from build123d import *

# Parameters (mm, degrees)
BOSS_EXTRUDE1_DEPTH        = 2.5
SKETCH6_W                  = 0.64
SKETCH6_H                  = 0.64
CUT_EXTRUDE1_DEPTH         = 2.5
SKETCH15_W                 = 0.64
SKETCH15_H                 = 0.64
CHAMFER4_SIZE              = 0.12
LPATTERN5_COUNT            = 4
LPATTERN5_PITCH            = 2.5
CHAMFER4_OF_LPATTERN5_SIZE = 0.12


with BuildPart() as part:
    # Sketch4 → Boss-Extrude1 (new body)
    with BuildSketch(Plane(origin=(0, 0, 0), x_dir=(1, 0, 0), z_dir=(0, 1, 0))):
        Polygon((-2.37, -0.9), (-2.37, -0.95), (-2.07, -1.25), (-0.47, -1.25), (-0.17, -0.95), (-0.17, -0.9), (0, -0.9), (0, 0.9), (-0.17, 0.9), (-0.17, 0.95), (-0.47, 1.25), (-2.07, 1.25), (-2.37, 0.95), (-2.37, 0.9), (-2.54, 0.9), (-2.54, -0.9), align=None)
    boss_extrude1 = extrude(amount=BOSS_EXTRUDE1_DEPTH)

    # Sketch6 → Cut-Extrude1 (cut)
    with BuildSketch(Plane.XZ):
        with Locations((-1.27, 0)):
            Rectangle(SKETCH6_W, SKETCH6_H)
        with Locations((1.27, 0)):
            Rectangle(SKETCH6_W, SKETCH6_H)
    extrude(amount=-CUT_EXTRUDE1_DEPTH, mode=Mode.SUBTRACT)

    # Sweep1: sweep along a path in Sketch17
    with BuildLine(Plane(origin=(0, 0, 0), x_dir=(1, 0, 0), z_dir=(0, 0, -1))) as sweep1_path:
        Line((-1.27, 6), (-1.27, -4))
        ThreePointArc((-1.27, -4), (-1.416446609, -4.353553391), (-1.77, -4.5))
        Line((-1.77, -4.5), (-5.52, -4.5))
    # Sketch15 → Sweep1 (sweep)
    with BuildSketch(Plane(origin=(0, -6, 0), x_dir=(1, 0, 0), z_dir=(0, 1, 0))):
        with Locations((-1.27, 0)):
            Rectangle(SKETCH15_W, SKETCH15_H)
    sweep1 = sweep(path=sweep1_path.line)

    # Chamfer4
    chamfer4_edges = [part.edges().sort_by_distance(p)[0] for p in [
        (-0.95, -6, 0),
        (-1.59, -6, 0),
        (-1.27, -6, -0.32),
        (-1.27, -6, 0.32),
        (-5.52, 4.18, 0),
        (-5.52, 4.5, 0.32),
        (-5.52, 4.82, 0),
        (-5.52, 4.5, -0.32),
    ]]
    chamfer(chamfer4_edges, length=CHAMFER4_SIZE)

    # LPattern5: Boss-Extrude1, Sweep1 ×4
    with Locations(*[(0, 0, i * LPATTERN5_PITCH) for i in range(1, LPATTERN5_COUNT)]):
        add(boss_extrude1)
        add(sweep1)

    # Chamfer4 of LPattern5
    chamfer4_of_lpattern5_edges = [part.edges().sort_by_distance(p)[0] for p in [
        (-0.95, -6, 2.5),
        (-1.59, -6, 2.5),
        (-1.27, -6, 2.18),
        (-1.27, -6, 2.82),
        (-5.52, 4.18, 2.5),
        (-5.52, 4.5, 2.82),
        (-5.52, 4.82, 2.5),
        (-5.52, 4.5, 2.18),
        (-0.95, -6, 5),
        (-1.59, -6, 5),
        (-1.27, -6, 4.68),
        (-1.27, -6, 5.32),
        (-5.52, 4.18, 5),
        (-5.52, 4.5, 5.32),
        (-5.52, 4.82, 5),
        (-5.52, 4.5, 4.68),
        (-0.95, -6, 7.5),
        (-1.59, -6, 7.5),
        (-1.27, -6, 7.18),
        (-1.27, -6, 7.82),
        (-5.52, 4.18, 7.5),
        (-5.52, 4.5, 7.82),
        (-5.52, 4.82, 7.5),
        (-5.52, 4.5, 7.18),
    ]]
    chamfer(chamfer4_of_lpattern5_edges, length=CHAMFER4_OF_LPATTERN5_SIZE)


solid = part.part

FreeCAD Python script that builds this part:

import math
import FreeCAD as App
import Part
import Sketcher
from FreeCAD import Vector


def edges_at(feature, points):
    """Names of the edges that pass closest to the given points."""
    edges = feature.Shape.Edges
    near = lambda p: min(range(len(edges)), key=lambda i: edges[i].distToShape(Part.Vertex(*p))[0])
    return sorted({f"Edge{near(p) + 1}" for p in points})


def add_polygon(sketch, points):
    """Adds a closed chain of lines whose ends are joined by coincident constraints."""
    first, n = sketch.GeometryCount, len(points)
    for a, b in zip(points, points[1:] + points[:1]):
        sketch.addGeometry(Part.LineSegment(App.Vector(*a, 0), App.Vector(*b, 0)), False)
    for i in range(n):
        sketch.addConstraint(Sketcher.Constraint("Coincident", first + i, 2, first + (i + 1) % n, 1))

doc = App.newDocument("Part")
params = doc.addObject("Spreadsheet::Sheet", "Params")
for row, (alias, value) in enumerate([
    ("sketch1_width", "1.6 mm"),
    ("sketch1_height", "1.8 mm"),
    ("sketch1_width2", "0.17 mm"),
    ("sketch1_height2", "0.05 mm"),
    ("pad1_length", "2.5 mm"),
    ("sketch2_width", "0.64 mm"),
    ("pocket1_length", "2.5 mm"),
    ("sketch3_width", "0.64 mm"),
    ("sketch4_radius", "0.5 mm"),
    ("sketch4_height", "10 mm"),
    ("sketch4_width", "3.75 mm"),
    ("chamfer_size", "0.12 mm"),
    ("linearpattern_pitch", "2.5 mm"),
    ("chamfer2_size", "0.12 mm"),
], start=1):
    params.set(f"A{row}", alias)
    params.set(f"B{row}", "=" + value)
    params.setAlias(f"B{row}", alias)

body = doc.addObject("PartDesign::Body", "Body")

sketch1 = body.newObject("Sketcher::SketchObject", "Sketch")
sketch1.AttachmentSupport = (doc.getObject("XZ_Plane"), [""])
sketch1.MapMode = "FlatFace"
add_polygon(sketch1, [(-2.37, 0.9), (-2.37, 0.95), (-2.07, 1.25), (-0.47, 1.25), (-0.17, 0.95), (-0.17, 0.9), (0, 0.9), (0, -0.9), (-0.17, -0.9), (-0.17, -0.95), (-0.47, -1.25), (-2.07, -1.25), (-2.37, -0.95), (-2.37, -0.9), (-2.54, -0.9), (-2.54, 0.9)])
sketch1.addConstraint(Sketcher.Constraint("Vertical", 0))
sketch1.addConstraint(Sketcher.Constraint("Horizontal", 2))
sketch1.addConstraint(Sketcher.Constraint("Vertical", 4))
sketch1.addConstraint(Sketcher.Constraint("Horizontal", 5))
sketch1.addConstraint(Sketcher.Constraint("Vertical", 6))
sketch1.addConstraint(Sketcher.Constraint("Horizontal", 7))
sketch1.addConstraint(Sketcher.Constraint("Vertical", 8))
sketch1.addConstraint(Sketcher.Constraint("Horizontal", 10))
sketch1.addConstraint(Sketcher.Constraint("Vertical", 12))
sketch1.addConstraint(Sketcher.Constraint("Horizontal", 13))
sketch1.addConstraint(Sketcher.Constraint("Vertical", 14))
sketch1.addConstraint(Sketcher.Constraint("Horizontal", 15))
sketch1.addConstraint(Sketcher.Constraint("Symmetric", 5, 2, 6, 2, -1, 1))
sketch1.addConstraint(Sketcher.Constraint("Symmetric", 3, 2, 8, 2, -1))
sketch1.addConstraint(Sketcher.Constraint("Symmetric", 2, 2, 9, 2, -1))
sketch1.addConstraint(Sketcher.Constraint("Symmetric", 0, 2, 11, 2, -1))
sketch1.addConstraint(Sketcher.Constraint("Perpendicular", 1, 3))
sketch1.addConstraint(Sketcher.Constraint("Perpendicular", 3, 9))
sketch1.addConstraint(Sketcher.Constraint("Perpendicular", 9, 11))
sketch1.addConstraint(Sketcher.Constraint("Horizontal", 0, 2, 3, 2))
sketch1.addConstraint(Sketcher.Constraint("Horizontal", 7, 2, 12, 2))
sketch1.addConstraint(Sketcher.Constraint("Horizontal", 5, 2, 14, 2))
sketch1.addConstraint(Sketcher.Constraint("Equal", 7, 13))
sketch1.addConstraint(Sketcher.Constraint("DistanceX", 2, 1, 2, 2, 1.6))
sketch1.addConstraint(Sketcher.Constraint("DistanceY", 6, 2, 6, 1, 1.8))
sketch1.addConstraint(Sketcher.Constraint("DistanceX", 5, 1, 5, 2, 0.17))
sketch1.addConstraint(Sketcher.Constraint("DistanceY", 0, 1, 0, 2, 0.05))
sketch1.addConstraint(Sketcher.Constraint("DistanceX", 0, 2, 1, 2, 0.3))
sketch1.setExpression("Constraints[39]", "Params.sketch1_width")
sketch1.setExpression("Constraints[40]", "Params.sketch1_height")
sketch1.setExpression("Constraints[41]", "Params.sketch1_width2")
sketch1.setExpression("Constraints[42]", "Params.sketch1_height2")
pad1 = body.newObject("PartDesign::Pad", "Pad")
pad1.Profile = sketch1
pad1.setExpression("Length", "Params.pad1_length")
pad1.Reversed = True

sketch2 = body.newObject("Sketcher::SketchObject", "Sketch001")
sketch2.AttachmentSupport = (doc.getObject("XZ_Plane"), [""])
sketch2.MapMode = "FlatFace"
add_polygon(sketch2, [(-1.6, 0.3), (-1.6, -0.3), (-0.9, -0.3), (-0.9, 0.3)])
add_polygon(sketch2, [(0.9, 0.3), (0.9, -0.3), (1.6, -0.3), (1.6, 0.3)])
sketch2.addConstraint(Sketcher.Constraint("Vertical", 0))
sketch2.addConstraint(Sketcher.Constraint("Horizontal", 1))
sketch2.addConstraint(Sketcher.Constraint("Vertical", 2))
sketch2.addConstraint(Sketcher.Constraint("Horizontal", 3))
sketch2.addConstraint(Sketcher.Constraint("Vertical", 4))
sketch2.addConstraint(Sketcher.Constraint("Horizontal", 5))
sketch2.addConstraint(Sketcher.Constraint("Vertical", 6))
sketch2.addConstraint(Sketcher.Constraint("Horizontal", 7))
sketch2.addConstraint(Sketcher.Constraint("Symmetric", 2, 2, 4, 2, -1, 1))
sketch2.addConstraint(Sketcher.Constraint("Symmetric", 0, 2, 6, 2, -1, 1))
sketch2.addConstraint(Sketcher.Constraint("Horizontal", 1, 2, 4, 2))
sketch2.addConstraint(Sketcher.Constraint("Equal", 7, 0))
sketch2.addConstraint(Sketcher.Constraint("DistanceX", 1, 1, 1, 2, 0.64))
sketch2.addConstraint(Sketcher.Constraint("DistanceX", 1, 2, 4, 2, 1.9))
sketch2.setExpression("Constraints[20]", "Params.sketch2_width")
pocket1 = body.newObject("PartDesign::Pocket", "Pocket")
pocket1.Profile = sketch2
pocket1.setExpression("Length", "Params.pocket1_length")

sketch3 = body.newObject("Sketcher::SketchObject", "Sketch002")
sketch3.AttachmentSupport = (doc.getObject("XZ_Plane"), [""])
sketch3.MapMode = "FlatFace"
sketch3.AttachmentOffset = App.Placement(Vector(0, 0, 6), App.Rotation())
add_polygon(sketch3, [(-1.6, -0.3), (-1.6, 0.3), (-0.9, 0.3), (-0.9, -0.3)])
sketch3.addConstraint(Sketcher.Constraint("Vertical", 0))
sketch3.addConstraint(Sketcher.Constraint("Horizontal", 1))
sketch3.addConstraint(Sketcher.Constraint("Vertical", 2))
sketch3.addConstraint(Sketcher.Constraint("Horizontal", 3))
sketch3.addConstraint(Sketcher.Constraint("Equal", 3, 0))
sketch3.addConstraint(Sketcher.Constraint("DistanceX", 1, 1, 1, 2, 0.64))
sketch3.addConstraint(Sketcher.Constraint("DistanceX", 0, 2, -1, 1, 1.59))
sketch3.addConstraint(Sketcher.Constraint("DistanceY", -1, 1, 0, 2, 0.32))
sketch3.setExpression("Constraints[9]", "Params.sketch3_width")

sketch4 = body.newObject("Sketcher::SketchObject", "Sketch003")
sketch4.AttachmentSupport = (doc.getObject("XY_Plane"), [""])
sketch4.MapMode = "FlatFace"
sketch4.addGeometry(Part.LineSegment(Vector(-1.27, -6, 0), Vector(-1.27, 4, 0)), False)
sketch4.addGeometry(Part.ArcOfCircle(Part.Circle(Vector(-1.77, 4, 0), Vector(0, 0, 1), 0.5), math.radians(0), math.radians(90)), False)
sketch4.addGeometry(Part.LineSegment(Vector(-1.77, 4.5, 0), Vector(-5.52, 4.5, 0)), False)
sketch4.addConstraint(Sketcher.Constraint("Tangent", 0, 2, 1, 1))
sketch4.addConstraint(Sketcher.Constraint("Tangent", 1, 2, 2, 1))
sketch4.addConstraint(Sketcher.Constraint("Vertical", 0))
sketch4.addConstraint(Sketcher.Constraint("Horizontal", 2))
sketch4.addConstraint(Sketcher.Constraint("Radius", 1, 0.5))
sketch4.addConstraint(Sketcher.Constraint("DistanceY", 0, 1, 0, 2, 10.0))
sketch4.addConstraint(Sketcher.Constraint("DistanceY", -1, 1, 1, 3, 4.0))
sketch4.addConstraint(Sketcher.Constraint("DistanceX", 2, 2, 2, 1, 3.75))
sketch4.addConstraint(Sketcher.Constraint("DistanceX", 1, 3, -1, 1, 1.77))
sketch4.setExpression("Constraints[4]", "Params.sketch4_radius")
sketch4.setExpression("Constraints[5]", "Params.sketch4_height")
sketch4.setExpression("Constraints[7]", "Params.sketch4_width")
doc.recompute()

additivepipe = body.newObject("PartDesign::AdditivePipe", "AdditivePipe")
additivepipe.Profile = sketch3
additivepipe.Spine = (sketch4, ["Edge1", "Edge2", "Edge3"])
doc.recompute()

chamfer = body.newObject("PartDesign::Chamfer", "Chamfer")
chamfer.Base = (additivepipe, edges_at(additivepipe, [
    (-0.95, -6, 0),
    (-1.59, -6, 0),
    (-1.27, -6, -0.32),
    (-1.27, -6, 0.32),
    (-5.52, 4.18, 0),
    (-5.52, 4.5, 0.32),
    (-5.52, 4.82, 0),
    (-5.52, 4.5, -0.32),
]))
chamfer.setExpression("Size", "Params.chamfer_size")
doc.recompute()

linearpattern = body.newObject("PartDesign::LinearPattern", "LinearPattern")
linearpattern.Originals = [pad1, additivepipe]
linearpattern.Direction = (doc.getObject("Z_Axis"), [""])
linearpattern.Mode = "offset"
linearpattern.setExpression("Offset", "Params.linearpattern_pitch")
linearpattern.Occurrences = 4
body.Tip = linearpattern
doc.recompute()

chamfer2 = body.newObject("PartDesign::Chamfer", "Chamfer001")
chamfer2.Base = (linearpattern, edges_at(linearpattern, [
    (-0.95, -6, 2.5),
    (-1.59, -6, 2.5),
    (-1.27, -6, 2.18),
    (-1.27, -6, 2.82),
    (-5.52, 4.18, 2.5),
    (-5.52, 4.5, 2.82),
    (-5.52, 4.82, 2.5),
    (-5.52, 4.5, 2.18),
    (-0.95, -6, 5),
    (-1.59, -6, 5),
    (-1.27, -6, 4.68),
    (-1.27, -6, 5.32),
    (-5.52, 4.18, 5),
    (-5.52, 4.5, 5.32),
    (-5.52, 4.82, 5),
    (-5.52, 4.5, 4.68),
    (-0.95, -6, 7.5),
    (-1.59, -6, 7.5),
    (-1.27, -6, 7.18),
    (-1.27, -6, 7.82),
    (-5.52, 4.18, 7.5),
    (-5.52, 4.5, 7.82),
    (-5.52, 4.82, 7.5),
    (-5.52, 4.5, 7.18),
]))
chamfer2.setExpression("Size", "Params.chamfer2_size")

doc.recompute()
